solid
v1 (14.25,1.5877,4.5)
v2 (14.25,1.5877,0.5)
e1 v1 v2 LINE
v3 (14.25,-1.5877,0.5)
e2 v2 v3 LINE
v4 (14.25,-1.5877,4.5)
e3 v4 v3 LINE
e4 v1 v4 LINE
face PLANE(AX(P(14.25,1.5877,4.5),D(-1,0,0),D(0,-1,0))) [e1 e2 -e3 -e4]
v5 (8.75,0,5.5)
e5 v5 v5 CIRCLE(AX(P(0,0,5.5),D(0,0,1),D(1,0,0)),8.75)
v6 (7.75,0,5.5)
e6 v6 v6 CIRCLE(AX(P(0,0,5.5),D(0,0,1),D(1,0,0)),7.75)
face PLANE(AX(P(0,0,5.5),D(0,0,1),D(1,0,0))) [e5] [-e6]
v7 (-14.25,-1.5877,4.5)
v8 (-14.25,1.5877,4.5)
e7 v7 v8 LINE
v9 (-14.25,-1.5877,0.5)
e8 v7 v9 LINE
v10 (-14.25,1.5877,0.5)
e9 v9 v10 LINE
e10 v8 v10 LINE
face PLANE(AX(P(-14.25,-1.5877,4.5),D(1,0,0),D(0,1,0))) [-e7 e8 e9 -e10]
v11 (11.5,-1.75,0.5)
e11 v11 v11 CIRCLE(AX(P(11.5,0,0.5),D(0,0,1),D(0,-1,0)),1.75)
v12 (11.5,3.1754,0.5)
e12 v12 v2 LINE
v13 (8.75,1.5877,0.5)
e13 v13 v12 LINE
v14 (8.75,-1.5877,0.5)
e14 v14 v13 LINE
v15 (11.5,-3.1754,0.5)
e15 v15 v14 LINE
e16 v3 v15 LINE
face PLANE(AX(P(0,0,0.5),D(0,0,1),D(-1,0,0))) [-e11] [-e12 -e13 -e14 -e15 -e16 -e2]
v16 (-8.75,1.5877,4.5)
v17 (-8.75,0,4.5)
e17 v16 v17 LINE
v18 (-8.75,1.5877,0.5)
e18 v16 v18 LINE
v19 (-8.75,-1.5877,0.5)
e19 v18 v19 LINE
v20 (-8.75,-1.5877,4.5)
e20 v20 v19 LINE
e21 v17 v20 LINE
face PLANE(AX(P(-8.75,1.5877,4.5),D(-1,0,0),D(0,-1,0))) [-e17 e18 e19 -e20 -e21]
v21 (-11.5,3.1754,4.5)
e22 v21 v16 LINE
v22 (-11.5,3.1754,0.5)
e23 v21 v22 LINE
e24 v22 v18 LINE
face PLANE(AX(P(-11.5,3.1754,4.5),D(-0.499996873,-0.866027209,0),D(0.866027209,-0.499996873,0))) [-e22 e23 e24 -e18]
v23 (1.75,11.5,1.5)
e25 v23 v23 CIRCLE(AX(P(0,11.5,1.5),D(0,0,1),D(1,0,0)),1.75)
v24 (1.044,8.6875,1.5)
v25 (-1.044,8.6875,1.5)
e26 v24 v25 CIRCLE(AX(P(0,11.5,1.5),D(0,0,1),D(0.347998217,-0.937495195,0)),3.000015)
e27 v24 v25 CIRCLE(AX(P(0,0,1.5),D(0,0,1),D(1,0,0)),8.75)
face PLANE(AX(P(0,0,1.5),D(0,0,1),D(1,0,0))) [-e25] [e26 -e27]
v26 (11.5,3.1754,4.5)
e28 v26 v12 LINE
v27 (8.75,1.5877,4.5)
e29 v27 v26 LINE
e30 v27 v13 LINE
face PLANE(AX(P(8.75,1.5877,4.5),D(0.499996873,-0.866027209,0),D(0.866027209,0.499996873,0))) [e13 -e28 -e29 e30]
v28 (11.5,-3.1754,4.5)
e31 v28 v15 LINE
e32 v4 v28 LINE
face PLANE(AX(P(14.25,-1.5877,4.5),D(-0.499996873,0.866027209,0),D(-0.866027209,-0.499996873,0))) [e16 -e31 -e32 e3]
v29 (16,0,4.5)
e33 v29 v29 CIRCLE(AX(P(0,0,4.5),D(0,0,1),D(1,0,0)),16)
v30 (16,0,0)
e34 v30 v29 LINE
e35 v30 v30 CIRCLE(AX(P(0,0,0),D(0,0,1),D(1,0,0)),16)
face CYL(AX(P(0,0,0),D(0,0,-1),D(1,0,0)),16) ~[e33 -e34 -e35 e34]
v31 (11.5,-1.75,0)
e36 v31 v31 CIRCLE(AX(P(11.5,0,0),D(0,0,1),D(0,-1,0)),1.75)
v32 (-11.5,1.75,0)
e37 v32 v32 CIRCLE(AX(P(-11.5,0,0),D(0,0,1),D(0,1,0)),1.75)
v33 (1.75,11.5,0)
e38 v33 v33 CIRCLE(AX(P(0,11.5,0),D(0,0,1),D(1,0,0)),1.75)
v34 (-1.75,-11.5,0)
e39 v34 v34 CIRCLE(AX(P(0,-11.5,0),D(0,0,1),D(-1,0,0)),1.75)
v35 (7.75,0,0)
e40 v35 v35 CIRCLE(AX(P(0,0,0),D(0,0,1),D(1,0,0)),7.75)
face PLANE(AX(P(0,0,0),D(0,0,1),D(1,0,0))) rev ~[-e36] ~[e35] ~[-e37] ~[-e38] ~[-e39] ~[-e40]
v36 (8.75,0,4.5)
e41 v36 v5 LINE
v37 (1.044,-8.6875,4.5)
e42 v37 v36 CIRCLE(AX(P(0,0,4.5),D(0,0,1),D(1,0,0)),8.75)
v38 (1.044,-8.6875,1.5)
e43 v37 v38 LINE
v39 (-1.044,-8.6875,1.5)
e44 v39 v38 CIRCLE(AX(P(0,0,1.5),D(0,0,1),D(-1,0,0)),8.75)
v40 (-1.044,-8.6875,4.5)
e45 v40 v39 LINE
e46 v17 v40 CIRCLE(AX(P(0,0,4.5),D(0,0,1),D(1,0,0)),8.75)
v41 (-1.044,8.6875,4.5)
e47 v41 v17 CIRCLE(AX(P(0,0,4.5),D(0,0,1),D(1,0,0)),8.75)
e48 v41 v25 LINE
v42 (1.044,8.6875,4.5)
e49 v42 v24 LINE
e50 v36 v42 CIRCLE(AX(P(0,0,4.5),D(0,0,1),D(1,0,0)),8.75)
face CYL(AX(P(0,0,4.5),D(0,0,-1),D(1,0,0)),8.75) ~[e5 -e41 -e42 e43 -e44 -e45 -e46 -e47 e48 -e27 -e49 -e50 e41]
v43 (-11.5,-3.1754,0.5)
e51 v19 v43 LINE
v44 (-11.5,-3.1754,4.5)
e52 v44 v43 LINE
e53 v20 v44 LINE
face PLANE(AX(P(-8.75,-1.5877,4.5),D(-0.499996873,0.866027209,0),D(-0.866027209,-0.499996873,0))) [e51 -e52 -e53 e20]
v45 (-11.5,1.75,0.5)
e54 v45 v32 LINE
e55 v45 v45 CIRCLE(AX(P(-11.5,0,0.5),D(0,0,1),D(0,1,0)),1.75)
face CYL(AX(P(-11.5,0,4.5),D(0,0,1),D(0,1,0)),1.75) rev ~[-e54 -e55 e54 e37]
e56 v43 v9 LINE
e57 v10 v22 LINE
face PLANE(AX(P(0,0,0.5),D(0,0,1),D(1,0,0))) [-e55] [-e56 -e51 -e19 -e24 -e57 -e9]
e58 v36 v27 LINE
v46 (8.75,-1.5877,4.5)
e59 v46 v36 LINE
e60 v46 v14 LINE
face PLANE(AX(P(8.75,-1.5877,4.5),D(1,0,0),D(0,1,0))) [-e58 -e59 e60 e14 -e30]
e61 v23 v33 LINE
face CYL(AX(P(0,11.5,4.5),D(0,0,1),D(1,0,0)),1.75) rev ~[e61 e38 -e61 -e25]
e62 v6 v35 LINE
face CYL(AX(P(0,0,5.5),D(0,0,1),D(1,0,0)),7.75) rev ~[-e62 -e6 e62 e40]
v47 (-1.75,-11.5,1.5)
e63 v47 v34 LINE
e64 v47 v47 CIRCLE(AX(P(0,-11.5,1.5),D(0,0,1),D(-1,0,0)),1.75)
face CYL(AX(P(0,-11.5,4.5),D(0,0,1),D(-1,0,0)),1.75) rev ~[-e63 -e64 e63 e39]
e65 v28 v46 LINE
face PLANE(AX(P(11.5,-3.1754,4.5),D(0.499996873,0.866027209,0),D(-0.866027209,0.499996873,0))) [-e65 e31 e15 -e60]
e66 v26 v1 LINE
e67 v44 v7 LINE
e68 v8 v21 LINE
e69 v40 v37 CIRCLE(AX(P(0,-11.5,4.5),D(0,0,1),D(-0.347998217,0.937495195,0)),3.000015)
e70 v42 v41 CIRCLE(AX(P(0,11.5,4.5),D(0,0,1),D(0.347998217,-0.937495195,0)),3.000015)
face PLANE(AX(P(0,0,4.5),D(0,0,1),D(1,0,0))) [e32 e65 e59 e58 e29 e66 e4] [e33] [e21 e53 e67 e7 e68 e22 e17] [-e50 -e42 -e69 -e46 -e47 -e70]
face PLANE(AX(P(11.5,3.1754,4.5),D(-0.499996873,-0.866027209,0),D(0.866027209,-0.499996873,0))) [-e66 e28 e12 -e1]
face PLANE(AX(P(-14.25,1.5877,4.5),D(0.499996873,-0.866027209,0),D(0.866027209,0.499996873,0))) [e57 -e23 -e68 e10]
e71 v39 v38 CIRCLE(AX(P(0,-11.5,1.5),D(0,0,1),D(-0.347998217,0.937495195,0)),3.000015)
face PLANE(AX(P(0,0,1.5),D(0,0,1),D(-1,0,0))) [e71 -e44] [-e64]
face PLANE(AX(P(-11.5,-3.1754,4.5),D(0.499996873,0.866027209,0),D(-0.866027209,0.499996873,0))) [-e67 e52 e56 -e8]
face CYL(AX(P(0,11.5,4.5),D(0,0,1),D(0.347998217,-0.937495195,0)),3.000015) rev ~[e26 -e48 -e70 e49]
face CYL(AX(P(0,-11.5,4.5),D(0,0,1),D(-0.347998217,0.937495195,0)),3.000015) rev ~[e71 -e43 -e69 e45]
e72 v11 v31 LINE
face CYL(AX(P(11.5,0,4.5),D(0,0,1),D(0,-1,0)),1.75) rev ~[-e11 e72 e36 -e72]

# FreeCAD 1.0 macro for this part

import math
import FreeCAD as App
import Part
import Sketcher
Q = App.Units.Quantity

doc = App.newDocument("Part")
body = doc.addObject("PartDesign::Body", "Body")

# Sketch on XY plane
sketch1 = body.newObject("Sketcher::SketchObject", "Sketch")
sketch1.AttachmentSupport = (doc.getObject("XY_Plane"), [""])
sketch1.MapMode = "FlatFace"
sketch1.addGeometry(Part.Circle(App.Vector(0, 0, 0), App.Vector(0, 0, 1), 16), False)
sketch1.addConstraint(Sketcher.Constraint("Coincident", 0, 3, -1, 1))
sketch1.addConstraint(Sketcher.Constraint("Diameter", 0, 32.0))
pad1 = body.newObject("PartDesign::Pad", "Pad")
pad1.Profile = sketch1
pad1.Length = 4.5

# Sketch on XY plane
sketch2 = body.newObject("Sketcher::SketchObject", "Sketch001")
sketch2.AttachmentSupport = (doc.getObject("XY_Plane"), [""])
sketch2.MapMode = "FlatFace"
sketch2.AttachmentOffset = App.Placement(App.Vector(0, 0, 4.5), App.Rotation())
sketch2.addGeometry(Part.Circle(App.Vector(0, 0, 0), App.Vector(0, 0, 1), 8.75), False)
sketch2.addConstraint(Sketcher.Constraint("Coincident", 0, 3, -1, 1))
sketch2.addConstraint(Sketcher.Constraint("Diameter", 0, 17.5))
pad2 = body.newObject("PartDesign::Pad", "Pad001")
pad2.Profile = sketch2
pad2.Length = 1

# Sketch on XY plane
sketch3 = body.newObject("Sketcher::SketchObject", "Sketch002")
sketch3.AttachmentSupport = (doc.getObject("XY_Plane"), [""])
sketch3.MapMode = "FlatFace"
sketch3.AttachmentOffset = App.Placement(App.Vector(0, 0, 5.5), App.Rotation())
sketch3.addGeometry(Part.Circle(App.Vector(0, 0, 0), App.Vector(0, 0, 1), 7.75), False)
sketch3.addConstraint(Sketcher.Constraint("Coincident", 0, 3, -1, 1))
sketch3.addConstraint(Sketcher.Constraint("Diameter", 0, 15.5))
pocket1 = body.newObject("PartDesign::Pocket", "Pocket")
pocket1.Profile = sketch3
pocket1.Type = "ThroughAll"

# Sketch on XY plane
sketch4 = body.newObject("Sketcher::SketchObject", "Sketch003")
sketch4.AttachmentSupport = (doc.getObject("XY_Plane"), [""])
sketch4.MapMode = "FlatFace"
sketch4.AttachmentOffset = App.Placement(App.Vector(0, 0, 4.5), App.Rotation())
sketch4.addGeometry(Part.Circle(App.Vector(0, 11.5, 0), App.Vector(0, 0, 1), 1.75), False)
sketch4.addConstraint(Sketcher.Constraint("PointOnObject", 0, 3, -2))
sketch4.addConstraint(Sketcher.Constraint("Diameter", 0, 3.5))
sketch4.addConstraint(Sketcher.Constraint("DistanceY", -1, 1, 0, 3, 11.5))
pocket2 = body.newObject("PartDesign::Pocket", "Pocket001")
pocket2.Profile = sketch4
pocket2.Type = "ThroughAll"
doc.recompute()

polarpattern = body.newObject("PartDesign::PolarPattern", "PolarPattern")
polarpattern.Originals = [pocket2]
polarpattern.Axis = (doc.getObject("Z_Axis"), [""])
polarpattern.Angle = 360
polarpattern.Occurrences = 4
body.Tip = polarpattern

# Sketch on XY plane
sketch5 = body.newObject("Sketcher::SketchObject", "Sketch004")
sketch5.AttachmentSupport = (doc.getObject("XY_Plane"), [""])
sketch5.MapMode = "FlatFace"
sketch5.AttachmentOffset = App.Placement(App.Vector(0, 0, 4.5), App.Rotation())
sketch5.addGeometry(Part.ArcOfCircle(Part.Circle(App.Vector(0, 0, 0), App.Vector(0, 0, 1), 8.75), math.radians(83.147474), math.radians(96.852526)), False)
sketch5.addGeometry(Part.ArcOfCircle(Part.Circle(App.Vector(0, 11.5, 0), App.Vector(0, 0, 1), 3.000015), math.radians(-69.635074), math.radians(249.635074)), False)
sketch5.addGeometry(Part.Circle(App.Vector(0, 11.5, 0), App.Vector(0, 0, 1), 1.75), False)
sketch5.addConstraint(Sketcher.Constraint("Coincident", 0, 1, 1, 1))
sketch5.addConstraint(Sketcher.Constraint("Coincident", 1, 2, 0, 2))
sketch5.addConstraint(Sketcher.Constraint("Coincident", 0, 3, -1, 1))
sketch5.addConstraint(Sketcher.Constraint("Coincident", 2, 3, 1, 3))
sketch5.addConstraint(Sketcher.Constraint("PointOnObject", 1, 3, -2))
sketch5.addConstraint(Sketcher.Constraint("Radius", 1, 3.0))
sketch5.addConstraint(Sketcher.Constraint("Diameter", 2, 3.5))
sketch5.addConstraint(Sketcher.Constraint("Radius", 0, 8.75))
sketch5.addConstraint(Sketcher.Constraint("DistanceY", -1, 1, 1, 3, 11.5))
pocket3 = body.newObject("PartDesign::Pocket", "Pocket002")
pocket3.Profile = sketch5
pocket3.Length = 3

# Sketch on XY plane
sketch6 = body.newObject("Sketcher::SketchObject", "Sketch005")
sketch6.AttachmentSupport = (doc.getObject("XY_Plane"), [""])
sketch6.MapMode = "FlatFace"
sketch6.AttachmentOffset = App.Placement(App.Vector(0, 0, 4.5), App.Rotation())
sketch6.addGeometry(Part.LineSegment(App.Vector(-8.75, 1.5877, 0), App.Vector(-11.5, 3.1754, 0)), False)
sketch6.addGeometry(Part.LineSegment(App.Vector(-11.5, 3.1754, 0), App.Vector(-14.25, 1.5877, 0)), False)
sketch6.addGeometry(Part.LineSegment(App.Vector(-14.25, 1.5877, 0), App.Vector(-14.25, -1.5877, 0)), False)
sketch6.addGeometry(Part.LineSegment(App.Vector(-14.25, -1.5877, 0), App.Vector(-11.5, -3.1754, 0)), False)
sketch6.addGeometry(Part.LineSegment(App.Vector(-11.5, -3.1754, 0), App.Vector(-8.75, -1.5877, 0)), False)
sketch6.addGeometry(Part.LineSegment(App.Vector(-8.75, -1.5877, 0), App.Vector(-8.75, 1.5877, 0)), False)
sketch6.addGeometry(Part.Circle(App.Vector(-11.5, 0, 0), App.Vector(0, 0, 1), 1.75), False)
sketch6.addConstraint(Sketcher.Constraint("Coincident", 0, 2, 1, 1))
sketch6.addConstraint(Sketcher.Constraint("Coincident", 1, 2, 2, 1))
sketch6.addConstraint(Sketcher.Constraint("Coincident", 2, 2, 3, 1))
sketch6.addConstraint(Sketcher.Constraint("Coincident", 3, 2, 4, 1))
sketch6.addConstraint(Sketcher.Constraint("Coincident", 4, 2, 5, 1))
sketch6.addConstraint(Sketcher.Constraint("Coincident", 5, 2, 0, 1))
sketch6.addConstraint(Sketcher.Constraint("Vertical", 2))
sketch6.addConstraint(Sketcher.Constraint("Vertical", 5))
sketch6.addConstraint(Sketcher.Constraint("Symmetric", 0, 2, 3, 2, -1))
sketch6.addConstraint(Sketcher.Constraint("PointOnObject", 6, 3, -1))
sketch6.addConstraint(Sketcher.Constraint("Parallel", 0, 3))
sketch6.addConstraint(Sketcher.Constraint("Parallel", 1, 4))
sketch6.addConstraint(Sketcher.Constraint("Horizontal", 2, 2, 4, 2))
sketch6.addConstraint(Sketcher.Constraint("Horizontal", 1, 2, 5, 2))
sketch6.addConstraint(Sketcher.Constraint("Vertical", 6, 3, 0, 2))
sketch6.addConstraint(Sketcher.Constraint("Diameter", 6, 3.5))
sketch6.addConstraint(Sketcher.Constraint("DistanceX", 2, 2, 4, 2, 5.5))
sketch6.addConstraint(Sketcher.Constraint("Angle", 0, Q("150.0002 deg")))
sketch6.addConstraint(Sketcher.Constraint("DistanceX", 6, 3, -1, 1, 11.5))
sketch6.addConstraint(Sketcher.Constraint("DistanceY", 2, 2, 2, 1, 3.1754))
pocket4 = body.newObject("PartDesign::Pocket", "Pocket003")
pocket4.Profile = sketch6
pocket4.Length = 4
doc.recompute()

polarpattern2 = body.newObject("PartDesign::PolarPattern", "PolarPattern001")
polarpattern2.Originals = [pocket4, pocket3]
polarpattern2.Axis = (doc.getObject("Z_Axis"), [""])
polarpattern2.Angle = 360
polarpattern2.Occurrences = 2
body.Tip = polarpattern2

doc.recompute()
